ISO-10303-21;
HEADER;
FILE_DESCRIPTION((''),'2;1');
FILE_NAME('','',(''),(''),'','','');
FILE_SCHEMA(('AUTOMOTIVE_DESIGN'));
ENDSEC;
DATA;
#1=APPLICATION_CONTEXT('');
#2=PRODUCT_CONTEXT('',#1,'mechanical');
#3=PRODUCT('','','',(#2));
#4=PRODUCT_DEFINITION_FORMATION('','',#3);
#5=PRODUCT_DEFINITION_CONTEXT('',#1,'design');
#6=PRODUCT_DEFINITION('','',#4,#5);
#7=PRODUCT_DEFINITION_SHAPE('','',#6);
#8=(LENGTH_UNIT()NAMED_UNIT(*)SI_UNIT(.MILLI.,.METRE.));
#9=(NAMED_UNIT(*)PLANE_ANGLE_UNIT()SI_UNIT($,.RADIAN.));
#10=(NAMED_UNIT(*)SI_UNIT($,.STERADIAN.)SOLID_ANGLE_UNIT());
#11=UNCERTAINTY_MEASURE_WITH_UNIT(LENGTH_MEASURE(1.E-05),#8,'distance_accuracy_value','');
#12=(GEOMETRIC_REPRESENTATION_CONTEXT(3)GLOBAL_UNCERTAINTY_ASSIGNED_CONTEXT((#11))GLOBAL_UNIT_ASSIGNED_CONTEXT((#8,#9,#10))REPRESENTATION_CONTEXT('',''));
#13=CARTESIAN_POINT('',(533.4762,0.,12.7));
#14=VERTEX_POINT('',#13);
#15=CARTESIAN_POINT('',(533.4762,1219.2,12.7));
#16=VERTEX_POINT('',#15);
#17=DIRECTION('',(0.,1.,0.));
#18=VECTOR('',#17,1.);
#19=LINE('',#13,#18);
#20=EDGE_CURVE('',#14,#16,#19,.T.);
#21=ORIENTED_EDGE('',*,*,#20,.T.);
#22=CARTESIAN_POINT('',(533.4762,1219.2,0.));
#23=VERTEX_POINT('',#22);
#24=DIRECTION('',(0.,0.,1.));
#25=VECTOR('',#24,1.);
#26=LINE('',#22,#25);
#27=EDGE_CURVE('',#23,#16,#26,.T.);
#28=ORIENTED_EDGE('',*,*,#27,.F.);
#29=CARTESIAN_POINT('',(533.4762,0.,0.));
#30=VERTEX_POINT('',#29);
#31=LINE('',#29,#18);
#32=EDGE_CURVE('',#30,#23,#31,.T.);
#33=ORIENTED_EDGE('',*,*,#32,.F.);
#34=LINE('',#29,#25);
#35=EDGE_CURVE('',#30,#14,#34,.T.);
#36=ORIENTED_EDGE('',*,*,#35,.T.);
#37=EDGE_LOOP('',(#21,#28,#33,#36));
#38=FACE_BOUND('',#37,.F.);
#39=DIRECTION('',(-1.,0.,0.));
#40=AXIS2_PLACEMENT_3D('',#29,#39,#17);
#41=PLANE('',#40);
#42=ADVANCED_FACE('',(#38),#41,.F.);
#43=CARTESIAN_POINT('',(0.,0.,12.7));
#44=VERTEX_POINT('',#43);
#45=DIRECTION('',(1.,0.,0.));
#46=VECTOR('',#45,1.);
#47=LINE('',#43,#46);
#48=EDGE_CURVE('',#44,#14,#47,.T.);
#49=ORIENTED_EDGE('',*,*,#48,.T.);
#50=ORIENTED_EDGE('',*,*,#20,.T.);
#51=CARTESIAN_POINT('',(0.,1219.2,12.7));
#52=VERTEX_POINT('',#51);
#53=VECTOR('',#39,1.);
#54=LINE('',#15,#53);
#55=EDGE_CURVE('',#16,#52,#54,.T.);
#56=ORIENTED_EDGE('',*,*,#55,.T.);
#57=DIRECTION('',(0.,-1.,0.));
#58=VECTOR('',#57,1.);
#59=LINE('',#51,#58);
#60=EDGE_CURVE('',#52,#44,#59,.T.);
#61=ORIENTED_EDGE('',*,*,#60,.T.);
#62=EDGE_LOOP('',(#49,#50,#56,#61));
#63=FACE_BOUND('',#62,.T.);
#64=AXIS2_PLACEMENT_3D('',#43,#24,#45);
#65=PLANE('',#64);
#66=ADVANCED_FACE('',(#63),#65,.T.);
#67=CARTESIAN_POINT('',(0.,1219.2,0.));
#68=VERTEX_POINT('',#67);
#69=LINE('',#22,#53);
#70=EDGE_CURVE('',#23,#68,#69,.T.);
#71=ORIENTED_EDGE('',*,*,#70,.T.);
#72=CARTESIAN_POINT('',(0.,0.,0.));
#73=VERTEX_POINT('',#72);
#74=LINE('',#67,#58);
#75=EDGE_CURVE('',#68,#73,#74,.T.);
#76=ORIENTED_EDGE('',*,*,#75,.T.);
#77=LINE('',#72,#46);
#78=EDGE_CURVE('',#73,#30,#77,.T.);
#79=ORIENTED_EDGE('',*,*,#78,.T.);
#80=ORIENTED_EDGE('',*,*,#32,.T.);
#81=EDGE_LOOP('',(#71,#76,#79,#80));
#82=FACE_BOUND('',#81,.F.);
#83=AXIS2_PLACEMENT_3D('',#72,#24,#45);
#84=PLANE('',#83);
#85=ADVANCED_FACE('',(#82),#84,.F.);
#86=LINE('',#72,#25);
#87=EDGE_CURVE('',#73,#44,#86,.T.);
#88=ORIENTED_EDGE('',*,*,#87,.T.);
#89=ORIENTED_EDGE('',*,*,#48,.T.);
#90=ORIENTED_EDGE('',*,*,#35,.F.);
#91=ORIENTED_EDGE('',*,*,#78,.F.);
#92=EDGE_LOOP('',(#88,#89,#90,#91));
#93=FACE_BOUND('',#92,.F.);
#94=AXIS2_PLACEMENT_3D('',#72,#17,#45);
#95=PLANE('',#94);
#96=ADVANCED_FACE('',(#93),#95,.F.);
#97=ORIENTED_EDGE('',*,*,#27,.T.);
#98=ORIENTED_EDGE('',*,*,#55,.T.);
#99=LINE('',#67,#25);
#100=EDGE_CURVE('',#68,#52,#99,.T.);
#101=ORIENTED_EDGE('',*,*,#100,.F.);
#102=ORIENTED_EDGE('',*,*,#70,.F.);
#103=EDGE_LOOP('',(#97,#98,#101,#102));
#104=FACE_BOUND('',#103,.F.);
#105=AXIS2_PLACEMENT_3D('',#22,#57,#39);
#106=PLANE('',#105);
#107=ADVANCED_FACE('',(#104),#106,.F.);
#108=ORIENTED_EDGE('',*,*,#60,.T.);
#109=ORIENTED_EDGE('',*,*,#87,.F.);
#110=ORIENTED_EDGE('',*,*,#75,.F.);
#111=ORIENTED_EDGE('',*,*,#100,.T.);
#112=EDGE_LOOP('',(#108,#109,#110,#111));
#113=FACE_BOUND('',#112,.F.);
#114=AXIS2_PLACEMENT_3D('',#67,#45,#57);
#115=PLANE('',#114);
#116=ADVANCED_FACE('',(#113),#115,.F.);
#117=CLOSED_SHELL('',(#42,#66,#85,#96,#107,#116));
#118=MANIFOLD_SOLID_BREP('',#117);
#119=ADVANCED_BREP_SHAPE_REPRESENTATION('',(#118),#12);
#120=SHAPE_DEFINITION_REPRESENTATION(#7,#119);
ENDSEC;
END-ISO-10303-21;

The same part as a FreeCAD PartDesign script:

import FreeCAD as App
import Part
import Sketcher
from FreeCAD import Vector
Q = App.Units.Quantity

doc = App.newDocument("Part")
body = doc.addObject("PartDesign::Body", "Body")

# Sketch on XY plane
sketch1 = body.newObject("Sketcher::SketchObject", "Sketch")
sketch1.AttachmentSupport = (doc.getObject("XY_Plane"), [""])
sketch1.MapMode = "FlatFace"
sketch1.addGeometry([
    Part.LineSegment(Vector(0, 1219.2, 0), Vector(0, 0, 0)),
    Part.LineSegment(Vector(0, 0, 0), Vector(533.4762, 0, 0)),
    Part.LineSegment(Vector(533.4762, 0, 0), Vector(533.4762, 1219.2, 0)),
    Part.LineSegment(Vector(533.4762, 1219.2, 0), Vector(0, 1219.2, 0)),
], False)
sketch1.addConstraint([
    Sketcher.Constraint("Coincident", 0, 2, 1, 1),
    Sketcher.Constraint("Coincident", 1, 2, 2, 1),
    Sketcher.Constraint("Coincident", 2, 2, 3, 1),
    Sketcher.Constraint("Coincident", 3, 2, 0, 1),
    Sketcher.Constraint("Vertical", 0),
    Sketcher.Constraint("Horizontal", 1),
    Sketcher.Constraint("Vertical", 2),
    Sketcher.Constraint("Horizontal", 3),
    Sketcher.Constraint("Coincident", 0, 2, -1, 1),
    Sketcher.Constraint("DistanceY", 0, 2, 0, 1, Q("48 in")),
    Sketcher.Constraint("DistanceX", 1, 1, 1, 2, Q("21.003 in")),
])
pad1 = body.newObject("PartDesign::Pad", "Pad")
pad1.Profile = sketch1
pad1.Length = Q("0.5 in")

doc.recompute()
